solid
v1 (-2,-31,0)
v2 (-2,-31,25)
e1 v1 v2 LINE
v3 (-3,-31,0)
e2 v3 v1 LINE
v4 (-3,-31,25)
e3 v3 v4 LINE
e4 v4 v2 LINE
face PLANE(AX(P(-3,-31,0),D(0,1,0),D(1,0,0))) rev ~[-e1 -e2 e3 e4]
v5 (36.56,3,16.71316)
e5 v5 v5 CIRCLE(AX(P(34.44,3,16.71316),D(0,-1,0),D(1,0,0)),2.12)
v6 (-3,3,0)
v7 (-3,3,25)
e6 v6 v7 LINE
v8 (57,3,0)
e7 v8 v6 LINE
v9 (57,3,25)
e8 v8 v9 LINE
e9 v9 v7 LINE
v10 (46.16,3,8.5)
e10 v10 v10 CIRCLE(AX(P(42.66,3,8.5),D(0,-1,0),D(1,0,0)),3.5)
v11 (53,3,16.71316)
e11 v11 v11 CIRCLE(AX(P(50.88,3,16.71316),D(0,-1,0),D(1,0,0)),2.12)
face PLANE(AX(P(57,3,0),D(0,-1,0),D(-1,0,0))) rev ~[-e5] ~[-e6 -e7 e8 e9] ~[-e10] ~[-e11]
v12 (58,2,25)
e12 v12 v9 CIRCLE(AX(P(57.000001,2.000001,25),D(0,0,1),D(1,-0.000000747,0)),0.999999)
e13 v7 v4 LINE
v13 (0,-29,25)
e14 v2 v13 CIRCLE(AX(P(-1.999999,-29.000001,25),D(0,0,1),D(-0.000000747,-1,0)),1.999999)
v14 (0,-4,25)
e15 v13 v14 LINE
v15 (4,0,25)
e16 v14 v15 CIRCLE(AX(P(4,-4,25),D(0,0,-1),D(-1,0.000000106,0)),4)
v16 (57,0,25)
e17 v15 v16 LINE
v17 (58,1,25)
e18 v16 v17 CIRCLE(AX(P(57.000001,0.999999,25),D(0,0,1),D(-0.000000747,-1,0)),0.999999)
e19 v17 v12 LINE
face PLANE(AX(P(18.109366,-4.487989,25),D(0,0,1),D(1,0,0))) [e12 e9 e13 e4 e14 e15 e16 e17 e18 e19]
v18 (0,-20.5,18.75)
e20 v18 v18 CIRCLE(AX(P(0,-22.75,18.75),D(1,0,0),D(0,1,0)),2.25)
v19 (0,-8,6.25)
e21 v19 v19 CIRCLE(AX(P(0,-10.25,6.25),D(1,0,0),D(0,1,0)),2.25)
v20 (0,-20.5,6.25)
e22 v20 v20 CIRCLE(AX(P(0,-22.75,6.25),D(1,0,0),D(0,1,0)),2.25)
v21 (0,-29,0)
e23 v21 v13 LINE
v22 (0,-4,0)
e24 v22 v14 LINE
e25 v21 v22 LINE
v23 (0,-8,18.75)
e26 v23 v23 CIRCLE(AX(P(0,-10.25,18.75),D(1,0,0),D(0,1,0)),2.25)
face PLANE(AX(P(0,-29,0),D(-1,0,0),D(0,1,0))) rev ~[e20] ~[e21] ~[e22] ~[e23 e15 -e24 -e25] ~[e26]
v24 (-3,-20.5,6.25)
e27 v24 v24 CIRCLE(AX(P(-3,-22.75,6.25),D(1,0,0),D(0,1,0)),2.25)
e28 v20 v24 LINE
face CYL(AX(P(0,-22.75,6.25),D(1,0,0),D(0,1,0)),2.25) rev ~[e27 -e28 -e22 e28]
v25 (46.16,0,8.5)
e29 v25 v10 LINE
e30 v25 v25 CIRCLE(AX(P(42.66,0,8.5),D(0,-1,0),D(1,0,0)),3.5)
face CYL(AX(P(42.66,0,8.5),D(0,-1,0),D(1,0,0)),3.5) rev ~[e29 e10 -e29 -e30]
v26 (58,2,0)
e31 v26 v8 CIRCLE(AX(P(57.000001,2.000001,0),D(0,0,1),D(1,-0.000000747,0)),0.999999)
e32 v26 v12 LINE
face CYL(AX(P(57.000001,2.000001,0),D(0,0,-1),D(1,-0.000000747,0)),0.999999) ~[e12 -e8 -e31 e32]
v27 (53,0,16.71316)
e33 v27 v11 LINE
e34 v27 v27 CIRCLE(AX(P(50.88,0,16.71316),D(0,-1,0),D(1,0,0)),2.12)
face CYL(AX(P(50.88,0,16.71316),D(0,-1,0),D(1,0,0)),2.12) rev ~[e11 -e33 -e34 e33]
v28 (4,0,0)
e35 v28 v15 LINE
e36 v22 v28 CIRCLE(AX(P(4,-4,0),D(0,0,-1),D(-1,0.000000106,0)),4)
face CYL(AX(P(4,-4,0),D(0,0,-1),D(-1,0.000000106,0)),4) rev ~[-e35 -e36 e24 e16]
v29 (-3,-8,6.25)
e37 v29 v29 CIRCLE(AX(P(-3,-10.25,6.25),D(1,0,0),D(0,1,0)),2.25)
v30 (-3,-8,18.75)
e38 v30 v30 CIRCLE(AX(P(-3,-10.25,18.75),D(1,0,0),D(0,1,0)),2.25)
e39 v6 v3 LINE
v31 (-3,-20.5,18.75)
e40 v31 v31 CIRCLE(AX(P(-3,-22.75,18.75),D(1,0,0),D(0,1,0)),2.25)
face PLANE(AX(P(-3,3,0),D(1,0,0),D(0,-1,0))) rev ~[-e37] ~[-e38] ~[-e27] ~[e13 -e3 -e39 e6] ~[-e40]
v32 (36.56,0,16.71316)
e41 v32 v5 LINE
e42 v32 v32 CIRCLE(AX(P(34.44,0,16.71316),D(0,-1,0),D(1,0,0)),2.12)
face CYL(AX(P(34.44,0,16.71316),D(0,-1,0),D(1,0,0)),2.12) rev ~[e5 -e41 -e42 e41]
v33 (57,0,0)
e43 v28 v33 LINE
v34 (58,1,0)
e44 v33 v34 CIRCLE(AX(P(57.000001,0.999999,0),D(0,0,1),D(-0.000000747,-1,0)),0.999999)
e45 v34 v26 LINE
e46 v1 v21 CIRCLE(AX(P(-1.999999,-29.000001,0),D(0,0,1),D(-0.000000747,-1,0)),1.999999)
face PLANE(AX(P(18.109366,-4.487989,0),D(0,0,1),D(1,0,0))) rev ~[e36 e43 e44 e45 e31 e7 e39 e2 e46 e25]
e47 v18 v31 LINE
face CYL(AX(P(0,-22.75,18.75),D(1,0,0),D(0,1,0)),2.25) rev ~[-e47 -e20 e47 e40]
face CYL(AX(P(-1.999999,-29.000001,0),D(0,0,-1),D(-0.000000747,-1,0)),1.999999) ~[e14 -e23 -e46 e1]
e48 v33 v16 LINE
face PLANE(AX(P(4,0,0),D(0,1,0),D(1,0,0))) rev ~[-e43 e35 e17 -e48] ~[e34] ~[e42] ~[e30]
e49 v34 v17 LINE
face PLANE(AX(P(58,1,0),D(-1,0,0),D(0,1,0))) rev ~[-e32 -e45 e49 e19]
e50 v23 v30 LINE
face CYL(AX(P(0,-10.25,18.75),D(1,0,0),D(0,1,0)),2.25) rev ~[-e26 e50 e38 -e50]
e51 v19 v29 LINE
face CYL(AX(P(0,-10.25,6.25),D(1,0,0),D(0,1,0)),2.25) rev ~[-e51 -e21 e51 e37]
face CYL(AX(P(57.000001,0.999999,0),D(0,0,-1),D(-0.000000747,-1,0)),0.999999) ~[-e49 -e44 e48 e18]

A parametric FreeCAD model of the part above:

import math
import FreeCAD as App
import Part
import Sketcher
Q = App.Units.Quantity

doc = App.newDocument("Part")
body = doc.addObject("PartDesign::Body", "Body")

# Sketch on XY plane
sketch1 = doc.addObject("Sketcher::SketchObject", "Sketch")
body.addObject(sketch1)
sketch1.AttachmentSupport = (doc.XY_Plane, [""])
sketch1.MapMode = "FlatFace"
sketch1.addGeometry(Part.ArcOfCircle(Part.Circle(App.Vector(-2, -29, 0), App.Vector(0, 0, 1), 2), math.radians(-90), math.radians(0)), False)
sketch1.addGeometry(Part.LineSegment(App.Vector(0, -29, 0), App.Vector(0, -4, 0)), False)
sketch1.addGeometry(Part.ArcOfCircle(Part.Circle(App.Vector(4, -4, 0), App.Vector(0, 0, 1), 4), math.radians(90), math.radians(180)), False)
sketch1.addGeometry(Part.LineSegment(App.Vector(4, 0, 0), App.Vector(57, 0, 0)), False)
sketch1.addGeometry(Part.ArcOfCircle(Part.Circle(App.Vector(57, 1, 0), App.Vector(0, 0, 1), 1), math.radians(-90), math.radians(0)), False)
sketch1.addGeometry(Part.LineSegment(App.Vector(58, 1, 0), App.Vector(58, 2, 0)), False)
sketch1.addGeometry(Part.ArcOfCircle(Part.Circle(App.Vector(57, 2, 0), App.Vector(0, 0, 1), 1), math.radians(0), math.radians(90)), False)
sketch1.addGeometry(Part.LineSegment(App.Vector(57, 3, 0), App.Vector(-3, 3, 0)), False)
sketch1.addGeometry(Part.LineSegment(App.Vector(-3, 3, 0), App.Vector(-3, -31, 0)), False)
sketch1.addGeometry(Part.LineSegment(App.Vector(-3, -31, 0), App.Vector(-2, -31, 0)), False)
sketch1.addConstraint(Sketcher.Constraint("Tangent", 0, 2, 1, 1))
sketch1.addConstraint(Sketcher.Constraint("Tangent", 1, 2, 2, 2))
sketch1.addConstraint(Sketcher.Constraint("Tangent", 2, 1, 3, 1))
sketch1.addConstraint(Sketcher.Constraint("Tangent", 3, 2, 4, 1))
sketch1.addConstraint(Sketcher.Constraint("Tangent", 4, 2, 5, 1))
sketch1.addConstraint(Sketcher.Constraint("Tangent", 5, 2, 6, 1))
sketch1.addConstraint(Sketcher.Constraint("Tangent", 6, 2, 7, 1))
sketch1.addConstraint(Sketcher.Constraint("Coincident", 7, 2, 8, 1))
sketch1.addConstraint(Sketcher.Constraint("Coincident", 8, 2, 9, 1))
sketch1.addConstraint(Sketcher.Constraint("Tangent", 9, 2, 0, 1))
sketch1.addConstraint(Sketcher.Constraint("Vertical", 1))
sketch1.addConstraint(Sketcher.Constraint("Horizontal", 3))
sketch1.addConstraint(Sketcher.Constraint("Vertical", 5))
sketch1.addConstraint(Sketcher.Constraint("Horizontal", 7))
sketch1.addConstraint(Sketcher.Constraint("Vertical", 8))
sketch1.addConstraint(Sketcher.Constraint("Horizontal", 9))
sketch1.addConstraint(Sketcher.Constraint("Equal", 4, 6))
sketch1.addConstraint(Sketcher.Constraint("PointOnObject", 0, 2, -2))
sketch1.addConstraint(Sketcher.Constraint("PointOnObject", 2, 1, -1))
sketch1.addConstraint(Sketcher.Constraint("Equal", 9, 5))
sketch1.addConstraint(Sketcher.Constraint("Radius", 0, Q("1.999999 mm")))
sketch1.addConstraint(Sketcher.Constraint("Radius", 2, Q("4 mm")))
sketch1.addConstraint(Sketcher.Constraint("Radius", 4, Q("0.999999 mm")))
sketch1.addConstraint(Sketcher.Constraint("DistanceX", 3, 1, 3, 2, Q("53 mm")))
sketch1.addConstraint(Sketcher.Constraint("DistanceX", 7, 2, 7, 1, Q("60 mm")))
sketch1.addConstraint(Sketcher.Constraint("DistanceY", 1, 1, 1, 2, Q("25 mm")))
pad1 = doc.addObject("PartDesign::Pad", "Pad")
body.addObject(pad1)
pad1.Profile = sketch1
pad1.Length = 25

# Sketch on YZ plane
sketch2 = doc.addObject("Sketcher::SketchObject", "Sketch001")
body.addObject(sketch2)
sketch2.AttachmentSupport = (doc.YZ_Plane, [""])
sketch2.MapMode = "FlatFace"
sketch2.addGeometry(Part.Circle(App.Vector(-22.8, 18.8, 0), App.Vector(0, 0, 1), 2.2), False)
sketch2.addGeometry(Part.Circle(App.Vector(-10.2, 18.8, 0), App.Vector(0, 0, 1), 2.2), False)
sketch2.addGeometry(Part.Circle(App.Vector(-10.2, 6.2, 0), App.Vector(0, 0, 1), 2.2), False)
sketch2.addGeometry(Part.Circle(App.Vector(-22.8, 6.2, 0), App.Vector(0, 0, 1), 2.2), False)
sketch2.addConstraint(Sketcher.Constraint("Equal", 0, 1))
sketch2.addConstraint(Sketcher.Constraint("Equal", 1, 2))
sketch2.addConstraint(Sketcher.Constraint("Equal", 2, 3))
sketch2.addConstraint(Sketcher.Constraint("Horizontal", 0, 3, 1, 3))
sketch2.addConstraint(Sketcher.Constraint("Horizontal", 2, 3, 3, 3))
sketch2.addConstraint(Sketcher.Constraint("Vertical", 1, 3, 2, 3))
sketch2.addConstraint(Sketcher.Constraint("Vertical", 0, 3, 3, 3))
sketch2.addConstraint(Sketcher.Constraint("Diameter", 0, Q("4.5 mm")))
sketch2.addConstraint(Sketcher.Constraint("DistanceX", 0, 3, 1, 3, Q("12.5 mm")))
sketch2.addConstraint(Sketcher.Constraint("DistanceY", 2, 3, 1, 3, Q("12.5 mm")))
sketch2.addConstraint(Sketcher.Constraint("DistanceX", 0, 3, -1, 1, Q("22.75 mm")))
sketch2.addConstraint(Sketcher.Constraint("DistanceY", -1, 1, 0, 3, Q("18.75 mm")))
pocket1 = doc.addObject("PartDesign::Pocket", "Pocket")
body.addObject(pocket1)
pocket1.Profile = sketch2
pocket1.Length = 25

# Sketch on XZ plane
sketch3 = doc.addObject("Sketcher::SketchObject", "Sketch002")
body.addObject(sketch3)
sketch3.AttachmentSupport = (doc.XZ_Plane, [""])
sketch3.MapMode = "FlatFace"
sketch3.addGeometry(Part.Circle(App.Vector(42.7, 8.5, 0), App.Vector(0, 0, 1), 3.5), False)
sketch3.addGeometry(Part.Circle(App.Vector(50.9, 16.7, 0), App.Vector(0, 0, 1), 2.1), False)
sketch3.addGeometry(Part.Circle(App.Vector(34.4, 16.7, 0), App.Vector(0, 0, 1), 2.1), False)
sketch3.addConstraint(Sketcher.Constraint("Equal", 1, 2))
sketch3.addConstraint(Sketcher.Constraint("Horizontal", 1, 3, 2, 3))
sketch3.addConstraint(Sketcher.Constraint("Diameter", 0, Q("7 mm")))
sketch3.addConstraint(Sketcher.Constraint("Diameter", 1, Q("4.24 mm")))
sketch3.addConstraint(Sketcher.Constraint("DistanceY", -1, 1, 0, 3, Q("8.5 mm")))
sketch3.addConstraint(Sketcher.Constraint("DistanceX", -1, 1, 0, 3, Q("42.66 mm")))
sketch3.addConstraint(Sketcher.Constraint("DistanceX", -1, 1, 1, 3, Q("50.88 mm")))
sketch3.addConstraint(Sketcher.Constraint("DistanceX", -1, 1, 2, 3, Q("34.44 mm")))
sketch3.addConstraint(Sketcher.Constraint("DistanceY", -1, 1, 1, 3, Q("16.71316 mm")))
pocket2 = doc.addObject("PartDesign::Pocket", "Pocket001")
body.addObject(pocket2)
pocket2.Profile = sketch3
pocket2.Length = 25

doc.recompute()
